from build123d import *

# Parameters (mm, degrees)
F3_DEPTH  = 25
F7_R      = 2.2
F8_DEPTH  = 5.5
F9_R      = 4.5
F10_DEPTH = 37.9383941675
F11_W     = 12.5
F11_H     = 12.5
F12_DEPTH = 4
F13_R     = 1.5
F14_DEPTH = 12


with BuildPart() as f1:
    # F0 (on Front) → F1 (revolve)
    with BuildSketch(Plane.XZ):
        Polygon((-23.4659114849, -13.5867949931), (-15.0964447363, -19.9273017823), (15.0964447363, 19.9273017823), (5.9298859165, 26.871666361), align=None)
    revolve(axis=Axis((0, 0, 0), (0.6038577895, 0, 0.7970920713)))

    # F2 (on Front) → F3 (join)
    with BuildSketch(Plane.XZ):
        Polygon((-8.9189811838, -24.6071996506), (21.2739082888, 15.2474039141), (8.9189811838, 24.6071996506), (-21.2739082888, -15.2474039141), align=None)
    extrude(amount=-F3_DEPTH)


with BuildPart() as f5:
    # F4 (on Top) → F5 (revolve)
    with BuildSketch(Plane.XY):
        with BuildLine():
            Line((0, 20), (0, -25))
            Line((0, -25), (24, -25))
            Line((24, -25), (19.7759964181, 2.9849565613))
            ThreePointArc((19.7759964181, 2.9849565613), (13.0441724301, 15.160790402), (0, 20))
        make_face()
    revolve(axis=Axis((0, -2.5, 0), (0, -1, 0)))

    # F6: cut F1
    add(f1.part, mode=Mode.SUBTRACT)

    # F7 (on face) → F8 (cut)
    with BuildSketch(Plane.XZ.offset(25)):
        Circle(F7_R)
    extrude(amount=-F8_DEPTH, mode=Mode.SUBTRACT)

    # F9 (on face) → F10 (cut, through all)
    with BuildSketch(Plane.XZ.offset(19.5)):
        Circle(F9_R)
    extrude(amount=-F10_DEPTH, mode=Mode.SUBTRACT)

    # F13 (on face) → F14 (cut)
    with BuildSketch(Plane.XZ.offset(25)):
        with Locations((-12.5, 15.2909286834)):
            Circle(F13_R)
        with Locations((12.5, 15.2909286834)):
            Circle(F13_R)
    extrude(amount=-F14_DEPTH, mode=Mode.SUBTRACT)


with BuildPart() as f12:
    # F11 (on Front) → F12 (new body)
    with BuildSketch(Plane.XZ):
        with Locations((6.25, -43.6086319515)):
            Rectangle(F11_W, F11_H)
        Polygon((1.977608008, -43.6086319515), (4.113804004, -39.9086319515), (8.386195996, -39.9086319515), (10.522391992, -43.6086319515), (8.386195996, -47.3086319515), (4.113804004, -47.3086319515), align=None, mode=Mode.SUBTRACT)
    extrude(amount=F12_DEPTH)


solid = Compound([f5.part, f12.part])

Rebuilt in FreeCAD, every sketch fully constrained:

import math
import FreeCAD as App
import Part
import Sketcher

V = App.Vector
Q = App.Units.Quantity

doc = App.newDocument("Part")
body = doc.addObject("PartDesign::Body", "Body")

# Sketch on XZ plane
sketch1 = doc.addObject("Sketcher::SketchObject", "Sketch")
body.addObject(sketch1)
sketch1.AttachmentSupport = (doc.XZ_Plane, [""])
sketch1.MapMode = "FlatFace"
sketch1.addGeometry([
    Part.LineSegment(V(-23, -14, 0), V(-15, -20, 0)),
    Part.LineSegment(V(-15, -20, 0), V(15, 20, 0)),
    Part.LineSegment(V(15, 20, 0), V(6, 27, 0)),
    Part.LineSegment(V(6, 27, 0), V(-23, -14, 0)),
], False)
sketch1.addGeometry(Part.LineSegment(V(-15, -20, 0), V(15, 20, 0)), True)  # axis
sketch1.addConstraint([
    Sketcher.Constraint("Coincident", 0, 2, 1, 1),
    Sketcher.Constraint("Coincident", 1, 2, 2, 1),
    Sketcher.Constraint("Coincident", 2, 2, 3, 1),
    Sketcher.Constraint("Coincident", 3, 2, 0, 1),
    Sketcher.Constraint("Coincident", 4, 1, 0, 2),
    Sketcher.Constraint("Coincident", 4, 2, 1, 2),
    Sketcher.Constraint("Symmetric", 0, 2, 1, 2, -1, 1),
    Sketcher.Constraint("Perpendicular", 0, 1),
    Sketcher.Constraint("Perpendicular", 1, 2),
    Sketcher.Constraint("Distance", 1, Q("50 mm")),
    Sketcher.Constraint("Distance", 0, Q("10.5 mm")),
    Sketcher.Constraint("Distance", 2, Q("11.5 mm")),
    Sketcher.Constraint("DistanceY", 0, 2, -1, 1, Q("19.927302 mm")),
])
revolution = doc.addObject("PartDesign::Revolution", "Revolution")
body.addObject(revolution)
revolution.Profile = sketch1
revolution.ReferenceAxis = (sketch1, ["Axis0"])
revolution.Angle = 360

# Sketch on XZ plane
sketch2 = doc.addObject("Sketcher::SketchObject", "Sketch001")
body.addObject(sketch2)
sketch2.AttachmentSupport = (doc.XZ_Plane, [""])
sketch2.MapMode = "FlatFace"
sketch2.addGeometry([
    Part.LineSegment(V(-9, -25, 0), V(21, 15, 0)),
    Part.LineSegment(V(21, 15, 0), V(9, 25, 0)),
    Part.LineSegment(V(9, 25, 0), V(-21, -15, 0)),
    Part.LineSegment(V(-21, -15, 0), V(-9, -25, 0)),
], False)
sketch2.addConstraint([
    Sketcher.Constraint("Coincident", 0, 2, 1, 1),
    Sketcher.Constraint("Coincident", 1, 2, 2, 1),
    Sketcher.Constraint("Coincident", 2, 2, 3, 1),
    Sketcher.Constraint("Coincident", 3, 2, 0, 1),
    Sketcher.Constraint("Symmetric", 0, 2, 2, 2, -1, 1),
    Sketcher.Constraint("Symmetric", 1, 2, 3, 2, -1, 1),
    Sketcher.Constraint("Perpendicular", 0, 1),
    Sketcher.Constraint("Distance", 0, Q("50 mm")),
    Sketcher.Constraint("Distance", 1, Q("15.5 mm")),
    Sketcher.Constraint("DistanceY", -1, 1, 1, 2, Q("24.6072 mm")),
])
pad1 = doc.addObject("PartDesign::Pad", "Pad")
body.addObject(pad1)
pad1.Profile = sketch2
pad1.Length = 25
pad1.Reversed = True
body2 = doc.addObject("PartDesign::Body", "Body001")

# Sketch on XY plane
sketch3 = doc.addObject("Sketcher::SketchObject", "Sketch002")
body2.addObject(sketch3)
sketch3.AttachmentSupport = (doc.getObject("XY_Plane001"), [""])
sketch3.MapMode = "FlatFace"
sketch3.addGeometry([
    Part.LineSegment(V(0, 20, 0), V(0, -25, 0)),
    Part.LineSegment(V(0, -25, 0), V(24, -25, 0)),
    Part.LineSegment(V(24, -25, 0), V(20, 3, 0)),
    Part.ArcOfCircle(Part.Circle(V(0, 0, 0), V(0, 0, 1), 20), math.radians(9), math.radians(90)),
], False)
sketch3.addConstraint([
    Sketcher.Constraint("Coincident", 0, 2, 1, 1),
    Sketcher.Constraint("Coincident", 1, 2, 2, 1),
    Sketcher.Constraint("Tangent", 2, 2, 3, 1),
    Sketcher.Constraint("Coincident", 3, 2, 0, 1),
    Sketcher.Constraint("Vertical", 0),
    Sketcher.Constraint("Horizontal", 1),
    Sketcher.Constraint("Coincident", 3, 3, -1, 1),
    Sketcher.Constraint("PointOnObject", 0, 2, -2),
    Sketcher.Constraint("Radius", 3, Q("20 mm")),
    Sketcher.Constraint("DistanceX", 1, 1, 1, 2, Q("24 mm")),
    Sketcher.Constraint("DistanceY", 0, 2, 0, 1, Q("45 mm")),
])
revolution2 = doc.addObject("PartDesign::Revolution", "Revolution001")
body2.addObject(revolution2)
revolution2.Profile = sketch3
revolution2.ReferenceAxis = (sketch3, ["V_Axis"])
revolution2.Angle = 360
doc.recompute()

boolean = doc.addObject("PartDesign::Boolean", "Boolean")
body2.addObject(boolean)
boolean.Type = "Cut"
boolean.addObjects([body])

# Sketch on XZ plane
sketch4 = doc.addObject("Sketcher::SketchObject", "Sketch003")
body2.addObject(sketch4)
sketch4.AttachmentSupport = (doc.getObject("XZ_Plane001"), [""])
sketch4.MapMode = "FlatFace"
sketch4.AttachmentOffset = App.Placement(V(0, 0, 25), App.Rotation())
sketch4.addGeometry(Part.Circle(V(0, 0, 0), V(0, 0, 1), 2.2), False)
sketch4.addConstraint([
    Sketcher.Constraint("Coincident", 0, 3, -1, 1),
    Sketcher.Constraint("Diameter", 0, Q("4.4 mm")),
])
pocket1 = doc.addObject("PartDesign::Pocket", "Pocket")
body2.addObject(pocket1)
pocket1.Profile = sketch4
pocket1.Length = 5.5

# Sketch on XZ plane
sketch5 = doc.addObject("Sketcher::SketchObject", "Sketch004")
body2.addObject(sketch5)
sketch5.AttachmentSupport = (doc.getObject("XZ_Plane001"), [""])
sketch5.MapMode = "FlatFace"
sketch5.AttachmentOffset = App.Placement(V(0, 0, 19.5), App.Rotation())
sketch5.addGeometry(Part.Circle(V(0, 0, 0), V(0, 0, 1), 4.5), False)
sketch5.addConstraint([
    Sketcher.Constraint("Coincident", 0, 3, -1, 1),
    Sketcher.Constraint("Diameter", 0, Q("9 mm")),
])
pocket2 = doc.addObject("PartDesign::Pocket", "Pocket001")
body2.addObject(pocket2)
pocket2.Profile = sketch5
pocket2.Type = "ThroughAll"

# Sketch on XZ plane
sketch6 = doc.addObject("Sketcher::SketchObject", "Sketch005")
body2.addObject(sketch6)
sketch6.AttachmentSupport = (doc.getObject("XZ_Plane001"), [""])
sketch6.MapMode = "FlatFace"
sketch6.AttachmentOffset = App.Placement(V(0, 0, 25), App.Rotation())
sketch6.addGeometry([
    Part.Circle(V(-12.5, 15.3, 0), V(0, 0, 1), 1.5),
    Part.Circle(V(12.5, 15.3, 0), V(0, 0, 1), 1.5),
], False)
sketch6.addConstraint([
    Sketcher.Constraint("Equal", 0, 1),
    Sketcher.Constraint("Symmetric", 0, 3, 1, 3, -2),
    Sketcher.Constraint("Diameter", 0, Q("3 mm")),
    Sketcher.Constraint("DistanceX", 0, 3, 1, 3, Q("25 mm")),
    Sketcher.Constraint("DistanceY", -1, 1, 0, 3, Q("15.290929 mm")),
])
pocket3 = doc.addObject("PartDesign::Pocket", "Pocket002")
body2.addObject(pocket3)
pocket3.Profile = sketch6
pocket3.Length = 12
body3 = doc.addObject("PartDesign::Body", "Body002")

# Sketch on XZ plane
sketch7 = doc.addObject("Sketcher::SketchObject", "Sketch006")
body3.addObject(sketch7)
sketch7.AttachmentSupport = (doc.getObject("XZ_Plane002"), [""])
sketch7.MapMode = "FlatFace"
sketch7.addGeometry([
    Part.LineSegment(V(0, -37.4, 0), V(0, -49.9, 0)),  # 0
    Part.LineSegment(V(0, -49.9, 0), V(12.5, -49.9, 0)),  # 1
    Part.LineSegment(V(12.5, -49.9, 0), V(12.5, -37.4, 0)),  # 2
    Part.LineSegment(V(12.5, -37.4, 0), V(0, -37.4, 0)),  # 3
    Part.LineSegment(V(4.1, -47.3, 0), V(2, -43.6, 0)),  # 4
    Part.LineSegment(V(2, -43.6, 0), V(4.1, -39.9, 0)),  # 5
    Part.LineSegment(V(4.1, -39.9, 0), V(8.4, -39.9, 0)),  # 6
    Part.LineSegment(V(8.4, -39.9, 0), V(10.5, -43.6, 0)),  # 7
    Part.LineSegment(V(10.5, -43.6, 0), V(8.4, -47.3, 0)),  # 8
    Part.LineSegment(V(8.4, -47.3, 0), V(4.1, -47.3, 0)),  # 9
], False)
sketch7.addConstraint([
    Sketcher.Constraint("Coincident", 0, 2, 1, 1),
    Sketcher.Constraint("Coincident", 1, 2, 2, 1),
    Sketcher.Constraint("Coincident", 2, 2, 3, 1),
    Sketcher.Constraint("Coincident", 3, 2, 0, 1),
    Sketcher.Constraint("Coincident", 4, 2, 5, 1),
    Sketcher.Constraint("Coincident", 5, 2, 6, 1),
    Sketcher.Constraint("Coincident", 6, 2, 7, 1),
    Sketcher.Constraint("Coincident", 7, 2, 8, 1),
    Sketcher.Constraint("Coincident", 8, 2, 9, 1),
    Sketcher.Constraint("Coincident", 9, 2, 4, 1),
    Sketcher.Constraint("Vertical", 0),
    Sketcher.Constraint("Horizontal", 1),
    Sketcher.Constraint("Vertical", 2),
    Sketcher.Constraint("Horizontal", 3),
    Sketcher.Constraint("Horizontal", 6),
    Sketcher.Constraint("Horizontal", 9),
    Sketcher.Constraint("PointOnObject", 0, 2, -2),
    Sketcher.Constraint("Parallel", 4, 7),
    Sketcher.Constraint("Parallel", 5, 8),
    Sketcher.Constraint("Horizontal", 4, 2, 7, 2),
    Sketcher.Constraint("Vertical", 6, 2, 8, 2),
    Sketcher.Constraint("Vertical", 5, 2, 9, 2),
    Sketcher.Constraint("Equal", 3, 0),
    Sketcher.Constraint("Angle", 4, Q("120 deg")),
    Sketcher.Constraint("DistanceX", 1, 1, 1, 2, Q("12.5 mm")),
    Sketcher.Constraint("DistanceY", 4, 2, 5, 2, Q("3.7 mm")),
    Sketcher.Constraint("DistanceY", 0, 2, 4, 2, Q("6.25 mm")),
    Sketcher.Constraint("DistanceX", 6, 1, 6, 2, Q("4.272392 mm")),
    Sketcher.Constraint("DistanceY", 0, 2, -1, 1, Q("49.858632 mm")),
    Sketcher.Constraint("DistanceX", -1, 1, 4, 2, Q("1.977608 mm")),
])
pad2 = doc.addObject("PartDesign::Pad", "Pad001")
body3.addObject(pad2)
pad2.Profile = sketch7
pad2.Length = 4

doc.recompute()
